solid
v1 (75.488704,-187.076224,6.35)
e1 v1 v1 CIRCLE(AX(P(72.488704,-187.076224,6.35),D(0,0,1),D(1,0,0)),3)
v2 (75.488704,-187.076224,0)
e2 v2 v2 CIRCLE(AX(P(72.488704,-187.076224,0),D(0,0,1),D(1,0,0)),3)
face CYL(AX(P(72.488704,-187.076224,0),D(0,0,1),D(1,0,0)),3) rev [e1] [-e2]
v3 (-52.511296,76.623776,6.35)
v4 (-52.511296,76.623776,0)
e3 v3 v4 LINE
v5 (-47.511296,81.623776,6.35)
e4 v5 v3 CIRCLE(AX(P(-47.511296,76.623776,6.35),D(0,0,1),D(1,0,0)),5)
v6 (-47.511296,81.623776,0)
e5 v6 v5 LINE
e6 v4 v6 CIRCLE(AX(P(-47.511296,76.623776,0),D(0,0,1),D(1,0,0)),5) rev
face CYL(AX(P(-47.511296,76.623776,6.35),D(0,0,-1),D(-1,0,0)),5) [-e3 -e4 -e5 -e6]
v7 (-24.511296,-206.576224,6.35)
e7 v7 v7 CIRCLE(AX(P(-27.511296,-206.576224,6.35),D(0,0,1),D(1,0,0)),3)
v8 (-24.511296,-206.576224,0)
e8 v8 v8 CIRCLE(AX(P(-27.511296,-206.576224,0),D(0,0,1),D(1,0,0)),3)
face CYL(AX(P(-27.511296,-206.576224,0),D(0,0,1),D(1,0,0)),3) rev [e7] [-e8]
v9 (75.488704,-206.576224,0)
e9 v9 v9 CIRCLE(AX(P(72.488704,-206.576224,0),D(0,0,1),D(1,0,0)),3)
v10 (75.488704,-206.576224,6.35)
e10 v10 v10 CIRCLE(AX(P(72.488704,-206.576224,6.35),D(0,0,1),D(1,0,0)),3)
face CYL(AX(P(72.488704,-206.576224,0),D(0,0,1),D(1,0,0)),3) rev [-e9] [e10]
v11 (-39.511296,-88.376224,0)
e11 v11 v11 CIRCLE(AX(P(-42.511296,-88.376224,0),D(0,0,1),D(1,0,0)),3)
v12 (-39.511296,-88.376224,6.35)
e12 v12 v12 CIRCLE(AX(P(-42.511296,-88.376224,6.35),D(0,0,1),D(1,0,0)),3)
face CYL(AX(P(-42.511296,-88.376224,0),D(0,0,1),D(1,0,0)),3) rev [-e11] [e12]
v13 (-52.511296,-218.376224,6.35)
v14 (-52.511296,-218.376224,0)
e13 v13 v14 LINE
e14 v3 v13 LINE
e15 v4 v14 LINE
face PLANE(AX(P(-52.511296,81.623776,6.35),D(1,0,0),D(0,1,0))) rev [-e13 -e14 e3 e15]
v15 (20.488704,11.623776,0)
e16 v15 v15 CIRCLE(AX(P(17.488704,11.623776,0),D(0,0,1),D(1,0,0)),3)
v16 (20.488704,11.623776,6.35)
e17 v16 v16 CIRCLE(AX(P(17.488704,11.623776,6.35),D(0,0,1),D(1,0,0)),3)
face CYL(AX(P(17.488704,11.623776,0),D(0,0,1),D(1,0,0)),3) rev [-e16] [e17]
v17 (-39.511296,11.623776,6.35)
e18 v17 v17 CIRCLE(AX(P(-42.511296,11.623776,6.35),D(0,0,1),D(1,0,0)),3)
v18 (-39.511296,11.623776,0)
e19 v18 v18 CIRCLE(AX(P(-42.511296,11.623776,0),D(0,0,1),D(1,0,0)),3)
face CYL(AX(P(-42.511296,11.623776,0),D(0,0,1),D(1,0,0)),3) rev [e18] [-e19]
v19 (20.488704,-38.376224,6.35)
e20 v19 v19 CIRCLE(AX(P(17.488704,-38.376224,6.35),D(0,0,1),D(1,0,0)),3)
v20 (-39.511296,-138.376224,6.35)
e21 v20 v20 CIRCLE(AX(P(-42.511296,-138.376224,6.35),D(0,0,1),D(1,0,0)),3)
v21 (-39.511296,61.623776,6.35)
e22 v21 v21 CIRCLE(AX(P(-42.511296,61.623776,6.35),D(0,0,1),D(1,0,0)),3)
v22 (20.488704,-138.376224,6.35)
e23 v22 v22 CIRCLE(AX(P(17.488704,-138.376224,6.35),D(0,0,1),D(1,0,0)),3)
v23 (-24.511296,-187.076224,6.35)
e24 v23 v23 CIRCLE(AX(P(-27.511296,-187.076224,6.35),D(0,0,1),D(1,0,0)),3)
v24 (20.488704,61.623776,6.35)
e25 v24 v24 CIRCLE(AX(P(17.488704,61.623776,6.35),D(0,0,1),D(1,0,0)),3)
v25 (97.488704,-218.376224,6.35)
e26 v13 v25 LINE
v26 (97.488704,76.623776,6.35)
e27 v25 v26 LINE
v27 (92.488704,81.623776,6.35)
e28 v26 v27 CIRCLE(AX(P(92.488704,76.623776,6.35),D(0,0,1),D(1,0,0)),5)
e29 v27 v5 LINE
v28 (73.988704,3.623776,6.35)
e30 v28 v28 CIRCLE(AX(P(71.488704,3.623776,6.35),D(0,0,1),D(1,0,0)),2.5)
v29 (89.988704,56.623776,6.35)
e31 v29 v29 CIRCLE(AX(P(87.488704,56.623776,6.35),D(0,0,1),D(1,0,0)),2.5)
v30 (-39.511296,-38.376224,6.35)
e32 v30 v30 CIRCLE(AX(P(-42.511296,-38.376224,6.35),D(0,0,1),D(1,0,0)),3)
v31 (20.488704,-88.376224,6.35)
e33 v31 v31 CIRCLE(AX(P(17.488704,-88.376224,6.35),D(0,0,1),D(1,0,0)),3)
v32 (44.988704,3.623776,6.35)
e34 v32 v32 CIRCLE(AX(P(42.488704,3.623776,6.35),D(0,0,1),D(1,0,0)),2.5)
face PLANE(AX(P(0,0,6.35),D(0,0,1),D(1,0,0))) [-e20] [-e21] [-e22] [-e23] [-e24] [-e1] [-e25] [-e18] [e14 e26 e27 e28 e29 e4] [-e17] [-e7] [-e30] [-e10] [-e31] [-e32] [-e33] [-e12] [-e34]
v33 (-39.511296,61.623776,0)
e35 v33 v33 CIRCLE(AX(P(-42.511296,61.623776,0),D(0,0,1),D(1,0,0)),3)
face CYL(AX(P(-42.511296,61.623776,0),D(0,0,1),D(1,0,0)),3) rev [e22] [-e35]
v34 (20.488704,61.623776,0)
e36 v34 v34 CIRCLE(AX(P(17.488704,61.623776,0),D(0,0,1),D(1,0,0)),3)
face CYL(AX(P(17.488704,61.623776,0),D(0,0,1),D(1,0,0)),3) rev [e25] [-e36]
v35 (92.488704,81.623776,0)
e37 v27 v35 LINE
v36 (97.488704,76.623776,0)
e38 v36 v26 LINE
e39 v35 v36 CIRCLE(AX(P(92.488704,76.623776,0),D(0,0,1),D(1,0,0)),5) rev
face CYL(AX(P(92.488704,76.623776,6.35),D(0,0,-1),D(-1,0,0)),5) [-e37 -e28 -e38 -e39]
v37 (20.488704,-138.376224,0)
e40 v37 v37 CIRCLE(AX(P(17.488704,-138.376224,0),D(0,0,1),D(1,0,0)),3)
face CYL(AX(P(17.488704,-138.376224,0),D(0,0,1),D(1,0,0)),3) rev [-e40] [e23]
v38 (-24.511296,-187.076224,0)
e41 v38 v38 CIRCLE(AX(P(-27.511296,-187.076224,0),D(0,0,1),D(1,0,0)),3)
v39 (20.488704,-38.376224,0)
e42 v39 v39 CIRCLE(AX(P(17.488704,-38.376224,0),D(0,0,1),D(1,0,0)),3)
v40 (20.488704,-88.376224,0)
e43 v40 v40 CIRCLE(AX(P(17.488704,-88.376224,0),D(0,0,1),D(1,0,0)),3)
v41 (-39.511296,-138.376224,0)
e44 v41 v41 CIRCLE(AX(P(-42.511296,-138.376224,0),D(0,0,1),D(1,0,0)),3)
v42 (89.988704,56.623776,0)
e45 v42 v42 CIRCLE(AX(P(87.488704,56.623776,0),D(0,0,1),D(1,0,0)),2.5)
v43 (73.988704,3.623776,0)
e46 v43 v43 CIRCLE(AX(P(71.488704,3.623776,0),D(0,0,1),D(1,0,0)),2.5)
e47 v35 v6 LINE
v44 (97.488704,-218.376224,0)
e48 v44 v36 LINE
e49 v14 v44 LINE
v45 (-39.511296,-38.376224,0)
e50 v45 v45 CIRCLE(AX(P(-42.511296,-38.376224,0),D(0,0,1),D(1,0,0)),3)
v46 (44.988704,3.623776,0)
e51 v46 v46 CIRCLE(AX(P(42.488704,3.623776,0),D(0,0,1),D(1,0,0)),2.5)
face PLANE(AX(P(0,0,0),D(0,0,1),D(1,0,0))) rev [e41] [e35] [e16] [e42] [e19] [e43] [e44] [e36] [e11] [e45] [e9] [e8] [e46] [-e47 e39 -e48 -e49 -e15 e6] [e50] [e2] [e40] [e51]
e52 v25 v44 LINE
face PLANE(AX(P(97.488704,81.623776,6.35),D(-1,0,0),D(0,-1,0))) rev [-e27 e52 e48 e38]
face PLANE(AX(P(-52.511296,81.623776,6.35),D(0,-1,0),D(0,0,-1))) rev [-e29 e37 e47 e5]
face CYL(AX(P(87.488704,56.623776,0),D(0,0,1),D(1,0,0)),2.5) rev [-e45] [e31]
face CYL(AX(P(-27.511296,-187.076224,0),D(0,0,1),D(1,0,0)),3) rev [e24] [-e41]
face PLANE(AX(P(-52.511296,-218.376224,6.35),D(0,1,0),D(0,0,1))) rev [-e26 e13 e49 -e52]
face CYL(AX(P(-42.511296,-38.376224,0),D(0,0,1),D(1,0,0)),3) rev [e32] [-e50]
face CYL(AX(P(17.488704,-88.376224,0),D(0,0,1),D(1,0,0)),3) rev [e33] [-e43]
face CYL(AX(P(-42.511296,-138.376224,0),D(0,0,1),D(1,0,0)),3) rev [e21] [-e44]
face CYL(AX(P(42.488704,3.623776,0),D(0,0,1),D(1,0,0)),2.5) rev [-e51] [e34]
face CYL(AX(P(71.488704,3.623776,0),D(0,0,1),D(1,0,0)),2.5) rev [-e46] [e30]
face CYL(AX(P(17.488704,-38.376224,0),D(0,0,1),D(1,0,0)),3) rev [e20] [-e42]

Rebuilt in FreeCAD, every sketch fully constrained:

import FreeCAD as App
import Part
import Sketcher

V = App.Vector
Q = App.Units.Quantity


def edges_at(feature, points):
    """Names of the edges that pass closest to the given points."""
    edges = feature.Shape.Edges
    near = lambda p: min(range(len(edges)), key=lambda i: edges[i].distToShape(Part.Vertex(*p))[0])
    return sorted({f"Edge{near(p) + 1}" for p in points})

doc = App.newDocument("Part")
params = doc.addObject("Spreadsheet::Sheet", "Params")
for row, (alias, value) in enumerate([
    ("sketch1_width", "150 mm"),
    ("sketch1_height", "300 mm"),
    ("pad1_length", "6.35 mm"),
    ("sketch2_diameter", "6 mm"),
    ("sketch3_diameter", "5 mm"),
    ("sketch3_diameter2", "6 mm"),
    ("fillet_radius", "5 mm"),
], start=1):
    params.set(f"A{row}", alias)
    params.set(f"B{row}", "=" + value)
    params.setAlias(f"B{row}", alias)

body = doc.addObject("PartDesign::Body", "Body")

sketch1 = doc.addObject("Sketcher::SketchObject", "Sketch")
body.addObject(sketch1)
sketch1.AttachmentSupport = (doc.XY_Plane, [""])
sketch1.MapMode = "FlatFace"
sketch1.addGeometry([
    Part.LineSegment(V(-53, 82, 0), V(-53, -218, 0)),
    Part.LineSegment(V(-53, -218, 0), V(97, -218, 0)),
    Part.LineSegment(V(97, -218, 0), V(97, 82, 0)),
    Part.LineSegment(V(97, 82, 0), V(-53, 82, 0)),
], False)
sketch1.addConstraint([
    Sketcher.Constraint("Coincident", 0, 2, 1, 1),
    Sketcher.Constraint("Coincident", 1, 2, 2, 1),
    Sketcher.Constraint("Coincident", 2, 2, 3, 1),
    Sketcher.Constraint("Coincident", 3, 2, 0, 1),
    Sketcher.Constraint("Vertical", 0),
    Sketcher.Constraint("Horizontal", 1),
    Sketcher.Constraint("Vertical", 2),
    Sketcher.Constraint("Horizontal", 3),
    Sketcher.Constraint("DistanceX", 1, 1, 1, 2, Q("150 mm")),
    Sketcher.Constraint("DistanceY", 0, 2, 0, 1, Q("300 mm")),
    Sketcher.Constraint("DistanceX", 0, 2, -1, 1, Q("52.511296 mm")),
    Sketcher.Constraint("DistanceY", 0, 2, -1, 1, Q("218.376224 mm")),
])
sketch1.setExpression("Constraints[8]", "Params.sketch1_width")
sketch1.setExpression("Constraints[9]", "Params.sketch1_height")
pad1 = doc.addObject("PartDesign::Pad", "Pad")
body.addObject(pad1)
pad1.Profile = sketch1
pad1.setExpression("Length", "Params.pad1_length")

sketch2 = doc.addObject("Sketcher::SketchObject", "Sketch001")
body.addObject(sketch2)
sketch2.AttachmentSupport = (doc.XY_Plane, [""])
sketch2.MapMode = "FlatFace"
sketch2.AttachmentOffset = App.Placement(V(0, 0, 6.35), App.Rotation())
sketch2.addGeometry([
    Part.Circle(V(-27.5, -206.6, 0), V(0, 0, 1), 3),
    Part.Circle(V(-27.5, -187.1, 0), V(0, 0, 1), 3),
    Part.Circle(V(72.5, -206.6, 0), V(0, 0, 1), 3),
    Part.Circle(V(72.5, -187.1, 0), V(0, 0, 1), 3),
], False)
sketch2.addConstraint([
    Sketcher.Constraint("Equal", 0, 1),
    Sketcher.Constraint("Equal", 1, 2),
    Sketcher.Constraint("Equal", 2, 3),
    Sketcher.Constraint("Horizontal", 0, 3, 2, 3),
    Sketcher.Constraint("Horizontal", 1, 3, 3, 3),
    Sketcher.Constraint("Vertical", 0, 3, 1, 3),
    Sketcher.Constraint("Vertical", 2, 3, 3, 3),
    Sketcher.Constraint("Diameter", 0, Q("6 mm")),
    Sketcher.Constraint("DistanceX", 0, 3, 2, 3, Q("100 mm")),
    Sketcher.Constraint("DistanceY", 0, 3, 1, 3, Q("19.5 mm")),
    Sketcher.Constraint("DistanceX", 0, 3, -1, 1, Q("27.511296 mm")),
    Sketcher.Constraint("DistanceY", 0, 3, -1, 1, Q("206.576224 mm")),
])
sketch2.setExpression("Constraints[7]", "Params.sketch2_diameter")
pocket1 = doc.addObject("PartDesign::Pocket", "Pocket")
body.addObject(pocket1)
pocket1.Profile = sketch2
pocket1.Type = "ThroughAll"

sketch3 = doc.addObject("Sketcher::SketchObject", "Sketch002")
body.addObject(sketch3)
sketch3.AttachmentSupport = (doc.XY_Plane, [""])
sketch3.MapMode = "FlatFace"
sketch3.AttachmentOffset = App.Placement(V(0, 0, 6.35), App.Rotation())
sketch3.addGeometry([
    Part.Circle(V(42.5, 3.6, 0), V(0, 0, 1), 2.5),
    Part.Circle(V(71.5, 3.6, 0), V(0, 0, 1), 2.5),
    Part.Circle(V(87.5, 56.6, 0), V(0, 0, 1), 2.5),
    Part.Circle(V(-42.5, -38.4, 0), V(0, 0, 1), 3),
    Part.Circle(V(17.5, -38.4, 0), V(0, 0, 1), 3),
    Part.Circle(V(-42.5, -138.4, 0), V(0, 0, 1), 3),
    Part.Circle(V(17.5, -138.4, 0), V(0, 0, 1), 3),
    Part.Circle(V(-42.5, -88.4, 0), V(0, 0, 1), 3),
    Part.Circle(V(17.5, -88.4, 0), V(0, 0, 1), 3),
    Part.Circle(V(-42.5, 11.6, 0), V(0, 0, 1), 3),
    Part.Circle(V(17.5, 11.6, 0), V(0, 0, 1), 3),
    Part.Circle(V(-42.5, 61.6, 0), V(0, 0, 1), 3),
    Part.Circle(V(17.5, 61.6, 0), V(0, 0, 1), 3),
], False)
sketch3.addConstraint([
    Sketcher.Constraint("Equal", 0, 1),
    Sketcher.Constraint("Equal", 1, 2),
    Sketcher.Constraint("Equal", 3, 4),
    Sketcher.Constraint("Equal", 4, 5),
    Sketcher.Constraint("Equal", 5, 6),
    Sketcher.Constraint("Equal", 6, 7),
    Sketcher.Constraint("Equal", 7, 8),
    Sketcher.Constraint("Equal", 8, 9),
    Sketcher.Constraint("Equal", 9, 10),
    Sketcher.Constraint("Equal", 10, 11),
    Sketcher.Constraint("Equal", 11, 12),
    Sketcher.Constraint("Horizontal", 0, 3, 1, 3),
    Sketcher.Constraint("Horizontal", 3, 3, 4, 3),
    Sketcher.Constraint("Horizontal", 5, 3, 6, 3),
    Sketcher.Constraint("Horizontal", 7, 3, 8, 3),
    Sketcher.Constraint("Horizontal", 9, 3, 10, 3),
    Sketcher.Constraint("Horizontal", 11, 3, 12, 3),
    Sketcher.Constraint("Vertical", 3, 3, 5, 3),
    Sketcher.Constraint("Vertical", 4, 3, 6, 3),
    Sketcher.Constraint("Vertical", 5, 3, 7, 3),
    Sketcher.Constraint("Vertical", 6, 3, 8, 3),
    Sketcher.Constraint("Vertical", 7, 3, 9, 3),
    Sketcher.Constraint("Vertical", 8, 3, 10, 3),
    Sketcher.Constraint("Vertical", 9, 3, 11, 3),
    Sketcher.Constraint("Vertical", 10, 3, 12, 3),
    Sketcher.Constraint("Diameter", 0, Q("5 mm")),
    Sketcher.Constraint("Diameter", 3, Q("6 mm")),
    Sketcher.Constraint("DistanceX", 0, 3, 1, 3, Q("29 mm")),
    Sketcher.Constraint("DistanceX", 1, 3, 2, 3, Q("16 mm")),
    Sketcher.Constraint("DistanceY", 1, 3, 2, 3, Q("53 mm")),
    Sketcher.Constraint("DistanceX", 3, 3, 0, 3, Q("85 mm")),
    Sketcher.Constraint("DistanceY", 3, 3, 0, 3, Q("42 mm")),
    Sketcher.Constraint("DistanceX", 4, 3, 0, 3, Q("25 mm")),
    Sketcher.Constraint("DistanceY", 5, 3, 3, 3, Q("100 mm")),
    Sketcher.Constraint("DistanceY", 5, 3, 7, 3, Q("50 mm")),
    Sketcher.Constraint("DistanceY", 3, 3, 9, 3, Q("50 mm")),
    Sketcher.Constraint("DistanceY", 9, 3, 11, 3, Q("50 mm")),
    Sketcher.Constraint("DistanceX", -1, 1, 0, 3, Q("42.488704 mm")),
    Sketcher.Constraint("DistanceY", -1, 1, 0, 3, Q("3.623776 mm")),
])
sketch3.setExpression("Constraints[25]", "Params.sketch3_diameter")
sketch3.setExpression("Constraints[26]", "Params.sketch3_diameter2")
pocket2 = doc.addObject("PartDesign::Pocket", "Pocket001")
body.addObject(pocket2)
pocket2.Profile = sketch3
pocket2.Type = "ThroughAll"
doc.recompute()

fillet = doc.addObject("PartDesign::Fillet", "Fillet")
body.addObject(fillet)
fillet.Base = (pocket2, edges_at(pocket2, [(-52.511, 81.624, 3.175), (97.489, 81.624, 3.175)]))
fillet.setExpression("Radius", "Params.fillet_radius")

doc.recompute()
